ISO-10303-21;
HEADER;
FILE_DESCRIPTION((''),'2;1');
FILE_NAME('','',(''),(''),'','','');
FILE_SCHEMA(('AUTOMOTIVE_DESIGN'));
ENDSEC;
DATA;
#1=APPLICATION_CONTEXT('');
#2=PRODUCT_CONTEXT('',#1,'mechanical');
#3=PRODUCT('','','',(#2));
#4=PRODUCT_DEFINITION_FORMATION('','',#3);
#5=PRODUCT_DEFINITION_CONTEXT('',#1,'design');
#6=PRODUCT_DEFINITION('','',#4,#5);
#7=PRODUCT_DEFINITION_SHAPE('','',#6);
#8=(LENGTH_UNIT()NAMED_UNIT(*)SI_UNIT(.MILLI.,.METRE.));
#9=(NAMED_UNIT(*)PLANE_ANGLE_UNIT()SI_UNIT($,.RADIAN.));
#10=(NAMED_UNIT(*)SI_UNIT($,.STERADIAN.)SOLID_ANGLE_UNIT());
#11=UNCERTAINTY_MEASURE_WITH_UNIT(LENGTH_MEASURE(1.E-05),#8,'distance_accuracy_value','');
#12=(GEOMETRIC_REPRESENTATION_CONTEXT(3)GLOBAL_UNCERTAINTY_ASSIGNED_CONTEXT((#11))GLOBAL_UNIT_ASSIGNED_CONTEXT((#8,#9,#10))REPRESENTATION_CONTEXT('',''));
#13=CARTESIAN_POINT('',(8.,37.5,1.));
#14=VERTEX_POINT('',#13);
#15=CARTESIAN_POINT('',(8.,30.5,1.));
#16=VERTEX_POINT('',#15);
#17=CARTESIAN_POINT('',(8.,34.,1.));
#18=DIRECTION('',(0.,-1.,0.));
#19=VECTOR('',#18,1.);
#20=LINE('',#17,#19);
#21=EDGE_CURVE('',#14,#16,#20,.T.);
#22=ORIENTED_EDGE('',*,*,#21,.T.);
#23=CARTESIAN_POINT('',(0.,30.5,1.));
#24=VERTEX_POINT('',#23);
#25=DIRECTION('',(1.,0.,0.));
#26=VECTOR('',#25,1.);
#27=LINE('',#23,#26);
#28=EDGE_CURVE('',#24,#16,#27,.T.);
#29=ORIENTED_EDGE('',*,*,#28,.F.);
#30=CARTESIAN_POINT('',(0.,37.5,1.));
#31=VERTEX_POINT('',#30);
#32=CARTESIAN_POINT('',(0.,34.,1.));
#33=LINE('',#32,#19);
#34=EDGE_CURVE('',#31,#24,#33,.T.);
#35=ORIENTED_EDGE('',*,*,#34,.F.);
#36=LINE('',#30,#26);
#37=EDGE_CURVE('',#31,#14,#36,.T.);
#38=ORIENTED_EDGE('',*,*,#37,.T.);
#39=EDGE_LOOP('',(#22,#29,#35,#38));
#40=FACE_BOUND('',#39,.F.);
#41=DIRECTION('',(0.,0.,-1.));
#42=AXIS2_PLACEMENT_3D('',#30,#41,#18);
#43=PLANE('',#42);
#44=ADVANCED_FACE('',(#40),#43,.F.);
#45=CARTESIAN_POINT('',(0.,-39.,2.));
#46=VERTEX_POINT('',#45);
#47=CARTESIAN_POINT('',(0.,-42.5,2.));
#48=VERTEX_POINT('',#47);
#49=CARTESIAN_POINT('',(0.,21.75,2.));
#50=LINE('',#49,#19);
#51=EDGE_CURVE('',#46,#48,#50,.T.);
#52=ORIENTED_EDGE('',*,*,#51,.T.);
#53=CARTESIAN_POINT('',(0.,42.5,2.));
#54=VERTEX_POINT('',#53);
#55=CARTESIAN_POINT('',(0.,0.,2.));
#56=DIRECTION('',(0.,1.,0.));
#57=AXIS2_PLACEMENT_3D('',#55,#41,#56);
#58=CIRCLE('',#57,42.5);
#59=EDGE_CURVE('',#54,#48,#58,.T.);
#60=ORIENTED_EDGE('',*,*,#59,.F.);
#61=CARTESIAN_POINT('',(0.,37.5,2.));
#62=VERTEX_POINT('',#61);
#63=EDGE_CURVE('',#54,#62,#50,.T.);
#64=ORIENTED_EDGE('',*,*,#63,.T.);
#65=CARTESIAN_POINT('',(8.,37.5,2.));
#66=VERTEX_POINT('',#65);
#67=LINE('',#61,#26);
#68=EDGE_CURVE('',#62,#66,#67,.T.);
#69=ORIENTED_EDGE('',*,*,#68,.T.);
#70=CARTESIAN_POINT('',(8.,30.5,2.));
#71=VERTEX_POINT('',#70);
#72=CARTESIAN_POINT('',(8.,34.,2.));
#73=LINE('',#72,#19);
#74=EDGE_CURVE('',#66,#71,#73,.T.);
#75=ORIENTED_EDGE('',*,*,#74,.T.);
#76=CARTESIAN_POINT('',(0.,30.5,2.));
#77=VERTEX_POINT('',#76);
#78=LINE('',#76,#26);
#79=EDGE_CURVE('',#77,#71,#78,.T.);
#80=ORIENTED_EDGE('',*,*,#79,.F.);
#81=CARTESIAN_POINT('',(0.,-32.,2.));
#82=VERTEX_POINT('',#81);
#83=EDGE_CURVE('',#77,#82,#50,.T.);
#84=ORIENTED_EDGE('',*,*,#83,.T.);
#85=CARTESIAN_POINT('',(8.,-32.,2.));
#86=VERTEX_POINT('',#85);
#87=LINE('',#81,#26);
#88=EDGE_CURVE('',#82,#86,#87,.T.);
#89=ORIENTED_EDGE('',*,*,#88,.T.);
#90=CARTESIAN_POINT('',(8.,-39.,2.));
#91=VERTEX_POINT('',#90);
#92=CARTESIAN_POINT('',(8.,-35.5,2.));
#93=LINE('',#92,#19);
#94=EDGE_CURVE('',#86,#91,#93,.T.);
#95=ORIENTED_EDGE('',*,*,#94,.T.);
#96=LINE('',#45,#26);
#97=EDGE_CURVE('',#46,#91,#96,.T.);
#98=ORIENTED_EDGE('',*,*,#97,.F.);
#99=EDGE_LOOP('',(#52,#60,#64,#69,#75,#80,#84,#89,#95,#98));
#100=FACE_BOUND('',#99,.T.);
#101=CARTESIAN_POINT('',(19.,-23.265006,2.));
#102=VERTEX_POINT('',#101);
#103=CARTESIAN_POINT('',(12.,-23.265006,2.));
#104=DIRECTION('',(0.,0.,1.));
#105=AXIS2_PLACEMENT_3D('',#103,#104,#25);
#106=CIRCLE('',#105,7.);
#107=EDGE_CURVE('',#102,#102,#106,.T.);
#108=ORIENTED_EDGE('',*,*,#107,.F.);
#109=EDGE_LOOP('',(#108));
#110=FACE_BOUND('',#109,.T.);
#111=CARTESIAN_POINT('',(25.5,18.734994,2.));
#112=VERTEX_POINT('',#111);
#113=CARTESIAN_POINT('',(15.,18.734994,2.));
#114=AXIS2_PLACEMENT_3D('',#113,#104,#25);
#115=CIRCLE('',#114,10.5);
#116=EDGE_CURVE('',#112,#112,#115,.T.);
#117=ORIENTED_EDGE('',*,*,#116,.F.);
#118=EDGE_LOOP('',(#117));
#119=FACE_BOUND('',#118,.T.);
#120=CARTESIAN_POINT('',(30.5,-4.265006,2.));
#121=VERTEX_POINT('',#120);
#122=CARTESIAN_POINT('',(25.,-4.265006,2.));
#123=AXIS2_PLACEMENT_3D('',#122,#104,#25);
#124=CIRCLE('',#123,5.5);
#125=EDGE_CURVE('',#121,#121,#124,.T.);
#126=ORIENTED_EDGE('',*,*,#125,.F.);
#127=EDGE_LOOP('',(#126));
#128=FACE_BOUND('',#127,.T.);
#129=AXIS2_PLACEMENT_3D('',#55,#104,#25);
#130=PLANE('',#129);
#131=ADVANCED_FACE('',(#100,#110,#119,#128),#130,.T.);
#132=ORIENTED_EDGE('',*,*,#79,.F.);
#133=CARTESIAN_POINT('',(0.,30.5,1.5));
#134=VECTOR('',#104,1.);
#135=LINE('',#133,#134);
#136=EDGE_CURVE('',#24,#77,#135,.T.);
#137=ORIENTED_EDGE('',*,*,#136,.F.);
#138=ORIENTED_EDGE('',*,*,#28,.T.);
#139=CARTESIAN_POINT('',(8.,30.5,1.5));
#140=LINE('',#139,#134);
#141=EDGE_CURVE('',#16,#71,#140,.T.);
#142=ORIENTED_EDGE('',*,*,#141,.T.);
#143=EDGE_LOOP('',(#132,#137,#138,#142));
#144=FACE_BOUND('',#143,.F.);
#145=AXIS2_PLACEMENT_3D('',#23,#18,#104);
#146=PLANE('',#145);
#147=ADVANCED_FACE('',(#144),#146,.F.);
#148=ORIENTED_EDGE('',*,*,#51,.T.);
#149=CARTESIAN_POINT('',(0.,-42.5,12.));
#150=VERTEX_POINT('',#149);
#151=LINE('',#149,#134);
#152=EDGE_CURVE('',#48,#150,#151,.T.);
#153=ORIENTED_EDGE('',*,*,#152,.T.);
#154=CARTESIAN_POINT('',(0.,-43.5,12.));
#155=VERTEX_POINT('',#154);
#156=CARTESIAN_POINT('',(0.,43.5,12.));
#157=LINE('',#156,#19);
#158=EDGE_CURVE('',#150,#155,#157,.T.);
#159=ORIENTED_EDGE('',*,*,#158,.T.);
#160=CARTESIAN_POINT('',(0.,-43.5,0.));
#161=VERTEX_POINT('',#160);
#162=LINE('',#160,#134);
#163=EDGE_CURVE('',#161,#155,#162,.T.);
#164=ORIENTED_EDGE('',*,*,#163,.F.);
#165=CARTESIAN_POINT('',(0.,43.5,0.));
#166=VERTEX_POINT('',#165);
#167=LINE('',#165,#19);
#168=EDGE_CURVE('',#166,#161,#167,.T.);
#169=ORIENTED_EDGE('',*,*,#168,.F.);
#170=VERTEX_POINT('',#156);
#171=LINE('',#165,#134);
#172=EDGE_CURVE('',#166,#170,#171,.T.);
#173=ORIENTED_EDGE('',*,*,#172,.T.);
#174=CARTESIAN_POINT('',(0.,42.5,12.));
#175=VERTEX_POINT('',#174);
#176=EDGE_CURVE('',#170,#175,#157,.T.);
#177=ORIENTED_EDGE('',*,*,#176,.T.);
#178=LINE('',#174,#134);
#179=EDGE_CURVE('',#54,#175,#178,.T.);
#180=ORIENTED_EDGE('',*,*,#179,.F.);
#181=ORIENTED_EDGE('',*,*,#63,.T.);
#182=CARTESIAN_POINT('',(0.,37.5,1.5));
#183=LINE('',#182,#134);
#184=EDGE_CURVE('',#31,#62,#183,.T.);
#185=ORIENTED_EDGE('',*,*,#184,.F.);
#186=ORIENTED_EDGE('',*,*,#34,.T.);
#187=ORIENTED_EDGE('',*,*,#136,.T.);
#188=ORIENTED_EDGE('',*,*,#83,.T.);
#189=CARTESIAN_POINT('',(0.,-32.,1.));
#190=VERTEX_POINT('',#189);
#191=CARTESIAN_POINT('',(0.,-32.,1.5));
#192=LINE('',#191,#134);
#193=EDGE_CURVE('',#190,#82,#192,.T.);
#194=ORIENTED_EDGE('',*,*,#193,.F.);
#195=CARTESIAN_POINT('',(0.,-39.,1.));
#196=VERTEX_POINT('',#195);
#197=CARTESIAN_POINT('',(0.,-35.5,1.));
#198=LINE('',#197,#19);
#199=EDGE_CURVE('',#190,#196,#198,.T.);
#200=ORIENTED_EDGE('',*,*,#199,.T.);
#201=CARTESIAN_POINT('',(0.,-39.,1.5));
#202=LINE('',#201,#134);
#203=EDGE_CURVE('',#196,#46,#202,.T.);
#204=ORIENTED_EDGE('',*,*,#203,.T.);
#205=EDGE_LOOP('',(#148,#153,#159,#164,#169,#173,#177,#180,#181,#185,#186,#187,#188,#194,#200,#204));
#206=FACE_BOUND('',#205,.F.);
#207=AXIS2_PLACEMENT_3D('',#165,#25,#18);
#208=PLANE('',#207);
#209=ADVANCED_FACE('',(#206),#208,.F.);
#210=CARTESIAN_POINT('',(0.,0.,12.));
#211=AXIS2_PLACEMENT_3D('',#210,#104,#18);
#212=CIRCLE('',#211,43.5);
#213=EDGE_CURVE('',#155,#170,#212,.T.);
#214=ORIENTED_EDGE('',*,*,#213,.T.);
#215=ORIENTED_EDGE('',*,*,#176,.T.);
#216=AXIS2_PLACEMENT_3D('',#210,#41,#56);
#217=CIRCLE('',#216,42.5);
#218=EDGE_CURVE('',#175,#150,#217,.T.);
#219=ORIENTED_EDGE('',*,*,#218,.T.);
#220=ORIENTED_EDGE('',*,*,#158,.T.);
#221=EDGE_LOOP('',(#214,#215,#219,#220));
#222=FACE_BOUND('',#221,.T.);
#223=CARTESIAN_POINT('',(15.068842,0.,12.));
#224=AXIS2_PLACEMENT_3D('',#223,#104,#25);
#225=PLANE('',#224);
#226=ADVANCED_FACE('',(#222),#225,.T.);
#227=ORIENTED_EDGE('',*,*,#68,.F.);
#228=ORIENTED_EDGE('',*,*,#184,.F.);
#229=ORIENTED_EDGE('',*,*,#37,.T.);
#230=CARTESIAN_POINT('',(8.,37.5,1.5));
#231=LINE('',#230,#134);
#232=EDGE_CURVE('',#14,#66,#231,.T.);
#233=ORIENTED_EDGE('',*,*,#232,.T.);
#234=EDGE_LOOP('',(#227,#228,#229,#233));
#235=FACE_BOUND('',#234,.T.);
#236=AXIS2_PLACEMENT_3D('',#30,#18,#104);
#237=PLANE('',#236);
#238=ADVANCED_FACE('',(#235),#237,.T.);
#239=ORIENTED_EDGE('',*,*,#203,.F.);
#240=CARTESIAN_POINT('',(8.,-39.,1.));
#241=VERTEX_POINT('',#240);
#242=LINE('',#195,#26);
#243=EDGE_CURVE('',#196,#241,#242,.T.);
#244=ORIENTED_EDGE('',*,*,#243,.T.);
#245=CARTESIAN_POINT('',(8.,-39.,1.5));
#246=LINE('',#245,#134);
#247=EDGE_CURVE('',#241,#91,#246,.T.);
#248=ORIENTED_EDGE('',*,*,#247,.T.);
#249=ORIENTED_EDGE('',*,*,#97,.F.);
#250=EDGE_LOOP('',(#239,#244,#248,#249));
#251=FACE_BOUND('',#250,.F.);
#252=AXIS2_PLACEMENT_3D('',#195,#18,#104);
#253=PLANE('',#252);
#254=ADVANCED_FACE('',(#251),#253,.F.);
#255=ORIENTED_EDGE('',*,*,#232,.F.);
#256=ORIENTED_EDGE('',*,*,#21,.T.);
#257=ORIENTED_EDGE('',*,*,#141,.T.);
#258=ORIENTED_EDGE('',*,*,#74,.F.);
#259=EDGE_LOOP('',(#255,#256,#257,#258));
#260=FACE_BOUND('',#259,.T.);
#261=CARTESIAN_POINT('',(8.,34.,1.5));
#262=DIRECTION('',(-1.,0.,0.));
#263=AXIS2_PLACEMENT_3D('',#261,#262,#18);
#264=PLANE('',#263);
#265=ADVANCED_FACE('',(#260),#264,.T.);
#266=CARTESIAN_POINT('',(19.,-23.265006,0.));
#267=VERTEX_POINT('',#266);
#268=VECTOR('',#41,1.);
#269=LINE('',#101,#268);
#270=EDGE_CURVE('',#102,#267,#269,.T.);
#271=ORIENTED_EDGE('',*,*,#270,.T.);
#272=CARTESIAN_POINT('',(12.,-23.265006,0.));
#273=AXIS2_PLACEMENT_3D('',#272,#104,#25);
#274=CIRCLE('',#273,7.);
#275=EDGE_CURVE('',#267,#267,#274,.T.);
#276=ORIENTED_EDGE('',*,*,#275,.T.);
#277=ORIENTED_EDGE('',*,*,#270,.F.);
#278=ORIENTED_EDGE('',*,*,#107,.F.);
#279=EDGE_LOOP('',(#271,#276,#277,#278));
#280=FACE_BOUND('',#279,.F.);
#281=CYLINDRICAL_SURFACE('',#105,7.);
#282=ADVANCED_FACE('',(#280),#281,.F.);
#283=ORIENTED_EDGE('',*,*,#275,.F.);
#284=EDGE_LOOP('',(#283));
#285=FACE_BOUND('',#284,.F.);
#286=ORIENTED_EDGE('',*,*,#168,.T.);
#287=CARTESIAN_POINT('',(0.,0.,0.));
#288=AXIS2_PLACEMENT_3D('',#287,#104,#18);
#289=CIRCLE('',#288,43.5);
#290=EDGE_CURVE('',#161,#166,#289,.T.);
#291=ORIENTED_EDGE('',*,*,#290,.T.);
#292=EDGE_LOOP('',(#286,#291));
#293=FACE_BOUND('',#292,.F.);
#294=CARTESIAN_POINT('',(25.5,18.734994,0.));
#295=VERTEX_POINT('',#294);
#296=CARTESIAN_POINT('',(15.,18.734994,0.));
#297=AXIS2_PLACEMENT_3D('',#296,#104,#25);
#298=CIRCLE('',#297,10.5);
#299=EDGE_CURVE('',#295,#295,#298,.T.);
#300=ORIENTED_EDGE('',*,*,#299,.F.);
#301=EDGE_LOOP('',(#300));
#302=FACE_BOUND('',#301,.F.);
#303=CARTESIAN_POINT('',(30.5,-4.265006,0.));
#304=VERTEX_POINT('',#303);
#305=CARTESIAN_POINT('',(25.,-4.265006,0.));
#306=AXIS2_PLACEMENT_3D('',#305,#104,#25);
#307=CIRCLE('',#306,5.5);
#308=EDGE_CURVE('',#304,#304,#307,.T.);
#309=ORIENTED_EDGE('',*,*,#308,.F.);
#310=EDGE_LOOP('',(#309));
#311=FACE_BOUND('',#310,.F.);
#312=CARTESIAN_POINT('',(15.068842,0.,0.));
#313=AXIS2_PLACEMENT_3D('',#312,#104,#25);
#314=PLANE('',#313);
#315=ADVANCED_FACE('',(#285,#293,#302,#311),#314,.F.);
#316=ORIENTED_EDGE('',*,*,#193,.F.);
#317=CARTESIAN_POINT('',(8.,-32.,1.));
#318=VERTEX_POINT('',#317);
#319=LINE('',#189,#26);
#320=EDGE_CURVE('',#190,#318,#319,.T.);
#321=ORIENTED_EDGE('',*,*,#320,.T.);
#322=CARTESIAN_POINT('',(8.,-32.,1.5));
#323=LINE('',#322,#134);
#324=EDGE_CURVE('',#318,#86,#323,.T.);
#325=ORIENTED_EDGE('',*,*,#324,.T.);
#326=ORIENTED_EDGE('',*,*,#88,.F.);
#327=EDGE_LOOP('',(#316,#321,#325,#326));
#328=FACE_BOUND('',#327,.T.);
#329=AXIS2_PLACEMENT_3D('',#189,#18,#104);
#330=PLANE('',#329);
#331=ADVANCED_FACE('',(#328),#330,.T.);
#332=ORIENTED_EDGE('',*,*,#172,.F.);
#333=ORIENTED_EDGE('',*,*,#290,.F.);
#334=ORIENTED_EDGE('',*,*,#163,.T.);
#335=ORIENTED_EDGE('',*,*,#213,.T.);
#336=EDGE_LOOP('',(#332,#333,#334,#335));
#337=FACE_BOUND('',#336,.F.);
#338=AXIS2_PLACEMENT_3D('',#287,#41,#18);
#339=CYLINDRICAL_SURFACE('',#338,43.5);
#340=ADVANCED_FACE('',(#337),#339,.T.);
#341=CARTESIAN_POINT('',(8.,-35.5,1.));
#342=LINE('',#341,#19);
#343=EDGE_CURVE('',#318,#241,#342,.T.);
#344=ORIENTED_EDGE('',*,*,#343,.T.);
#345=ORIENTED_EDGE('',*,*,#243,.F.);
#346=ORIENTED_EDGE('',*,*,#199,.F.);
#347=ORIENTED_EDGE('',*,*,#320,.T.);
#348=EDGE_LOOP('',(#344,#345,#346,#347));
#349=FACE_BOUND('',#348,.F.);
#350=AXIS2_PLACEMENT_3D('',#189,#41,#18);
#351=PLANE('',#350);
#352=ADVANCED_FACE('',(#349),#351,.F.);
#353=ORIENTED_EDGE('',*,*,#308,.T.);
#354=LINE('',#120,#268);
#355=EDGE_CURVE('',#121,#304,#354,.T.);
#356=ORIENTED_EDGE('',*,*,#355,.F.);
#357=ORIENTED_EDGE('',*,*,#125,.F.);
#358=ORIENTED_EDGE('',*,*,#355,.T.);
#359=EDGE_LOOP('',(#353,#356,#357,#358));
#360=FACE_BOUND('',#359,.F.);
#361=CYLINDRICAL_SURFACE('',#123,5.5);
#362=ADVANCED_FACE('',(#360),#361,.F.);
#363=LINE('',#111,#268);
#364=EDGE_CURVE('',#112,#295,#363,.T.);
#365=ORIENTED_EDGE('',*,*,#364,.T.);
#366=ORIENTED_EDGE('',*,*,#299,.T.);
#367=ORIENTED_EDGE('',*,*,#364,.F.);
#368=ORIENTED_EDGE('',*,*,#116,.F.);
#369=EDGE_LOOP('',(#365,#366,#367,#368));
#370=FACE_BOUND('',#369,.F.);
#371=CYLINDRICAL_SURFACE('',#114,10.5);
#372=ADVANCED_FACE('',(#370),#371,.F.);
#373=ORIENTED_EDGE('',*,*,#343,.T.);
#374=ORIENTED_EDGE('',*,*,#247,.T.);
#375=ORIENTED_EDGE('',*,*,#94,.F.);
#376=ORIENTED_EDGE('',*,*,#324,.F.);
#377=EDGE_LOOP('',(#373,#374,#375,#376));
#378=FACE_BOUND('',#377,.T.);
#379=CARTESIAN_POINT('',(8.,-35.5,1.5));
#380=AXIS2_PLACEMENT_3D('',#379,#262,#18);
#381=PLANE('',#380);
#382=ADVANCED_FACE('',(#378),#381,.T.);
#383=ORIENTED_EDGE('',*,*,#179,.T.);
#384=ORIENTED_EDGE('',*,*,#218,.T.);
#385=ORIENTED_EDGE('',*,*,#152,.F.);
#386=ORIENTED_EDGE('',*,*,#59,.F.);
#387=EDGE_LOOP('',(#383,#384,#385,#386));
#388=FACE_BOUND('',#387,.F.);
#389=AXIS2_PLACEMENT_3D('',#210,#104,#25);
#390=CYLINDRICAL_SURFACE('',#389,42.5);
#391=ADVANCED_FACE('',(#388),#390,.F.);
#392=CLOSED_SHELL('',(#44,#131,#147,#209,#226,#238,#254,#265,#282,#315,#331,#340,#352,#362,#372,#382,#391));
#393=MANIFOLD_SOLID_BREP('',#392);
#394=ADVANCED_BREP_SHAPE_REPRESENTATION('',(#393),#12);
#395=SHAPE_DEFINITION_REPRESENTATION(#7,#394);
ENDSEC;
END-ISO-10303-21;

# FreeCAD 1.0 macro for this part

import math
import FreeCAD as App
import Part
import Sketcher

doc = App.newDocument("Part")
params = doc.addObject("Spreadsheet::Sheet", "Params")
for row, (alias, value) in enumerate([
    ("sketch1_radius", "43.5 mm"),
    ("pad1_length", "12 mm"),
    ("sketch2_diameter", "85 mm"),
    ("pocket1_length", "10 mm"),
    ("sketch3_diameter", "21 mm"),
    ("sketch3_diameter2", "11 mm"),
    ("sketch3_diameter3", "14 mm"),
    ("sketch4_width", "7 mm"),
    ("sketch4_height", "1 mm"),
    ("pocket3_length", "8 mm"),
], start=1):
    params.set(f"A{row}", alias)
    params.set(f"B{row}", "=" + value)
    params.setAlias(f"B{row}", alias)

body = doc.addObject("PartDesign::Body", "Body")

# Sketch on XY plane
sketch1 = body.newObject("Sketcher::SketchObject", "Sketch")
sketch1.AttachmentSupport = (doc.getObject("XY_Plane"), [""])
sketch1.MapMode = "FlatFace"
sketch1.addGeometry(Part.LineSegment(App.Vector(0, 43.5, 0), App.Vector(0, -43.5, 0)), False)
sketch1.addGeometry(Part.ArcOfCircle(Part.Circle(App.Vector(0, 0, 0), App.Vector(0, 0, 1), 43.5), math.radians(-90), math.radians(90)), False)
sketch1.addConstraint(Sketcher.Constraint("Coincident", 0, 1, 1, 2))
sketch1.addConstraint(Sketcher.Constraint("Coincident", 1, 1, 0, 2))
sketch1.addConstraint(Sketcher.Constraint("Vertical", 0))
sketch1.addConstraint(Sketcher.Constraint("Coincident", 1, 3, -1, 1))
sketch1.addConstraint(Sketcher.Constraint("PointOnObject", 0, 1, -2))
sketch1.addConstraint(Sketcher.Constraint("Radius", 1, 43.5))
sketch1.setExpression("Constraints[5]", "Params.sketch1_radius")
pad1 = body.newObject("PartDesign::Pad", "Pad")
pad1.Profile = sketch1
pad1.setExpression("Length", "Params.pad1_length")

# Sketch on XY plane
sketch2 = body.newObject("Sketcher::SketchObject", "Sketch001")
sketch2.AttachmentSupport = (doc.getObject("XY_Plane"), [""])
sketch2.MapMode = "FlatFace"
sketch2.AttachmentOffset = App.Placement(App.Vector(0, 0, 12), App.Rotation())
sketch2.addGeometry(Part.Circle(App.Vector(0, 0, 0), App.Vector(0, 0, 1), 42.5), False)
sketch2.addConstraint(Sketcher.Constraint("Coincident", 0, 3, -1, 1))
sketch2.addConstraint(Sketcher.Constraint("Diameter", 0, 85.0))
sketch2.setExpression("Constraints[1]", "Params.sketch2_diameter")
pocket1 = body.newObject("PartDesign::Pocket", "Pocket")
pocket1.Profile = sketch2
pocket1.setExpression("Length", "Params.pocket1_length")

# Sketch on XY plane
sketch3 = body.newObject("Sketcher::SketchObject", "Sketch002")
sketch3.AttachmentSupport = (doc.getObject("XY_Plane"), [""])
sketch3.MapMode = "FlatFace"
sketch3.AttachmentOffset = App.Placement(App.Vector(0, 0, 2), App.Rotation())
sketch3.addGeometry(Part.Circle(App.Vector(-15, 18.734994, 0), App.Vector(0, 0, 1), 10.5), False)
sketch3.addGeometry(Part.Circle(App.Vector(-25, -4.265006, 0), App.Vector(0, 0, 1), 5.5), False)
sketch3.addGeometry(Part.Circle(App.Vector(-12, -23.265006, 0), App.Vector(0, 0, 1), 7), False)
sketch3.addGeometry(Part.Circle(App.Vector(15, 18.734994, 0), App.Vector(0, 0, 1), 10.5), False)
sketch3.addGeometry(Part.Circle(App.Vector(25, -4.265006, 0), App.Vector(0, 0, 1), 5.5), False)
sketch3.addGeometry(Part.Circle(App.Vector(12, -23.265006, 0), App.Vector(0, 0, 1), 7), False)
sketch3.addConstraint(Sketcher.Constraint("Equal", 0, 3))
sketch3.addConstraint(Sketcher.Constraint("Equal", 1, 4))
sketch3.addConstraint(Sketcher.Constraint("Equal", 2, 5))
sketch3.addConstraint(Sketcher.Constraint("Symmetric", 0, 3, 3, 3, -2))
sketch3.addConstraint(Sketcher.Constraint("Symmetric", 1, 3, 4, 3, -2))
sketch3.addConstraint(Sketcher.Constraint("Symmetric", 2, 3, 5, 3, -2))
sketch3.addConstraint(Sketcher.Constraint("Diameter", 0, 21.0))
sketch3.addConstraint(Sketcher.Constraint("Diameter", 1, 11.0))
sketch3.addConstraint(Sketcher.Constraint("Diameter", 2, 14.0))
sketch3.addConstraint(Sketcher.Constraint("DistanceX", 0, 3, -1, 1, 15.0))
sketch3.addConstraint(Sketcher.Constraint("DistanceX", 1, 3, -1, 1, 25.0))
sketch3.addConstraint(Sketcher.Constraint("DistanceX", 2, 3, -1, 1, 12.0))
sketch3.addConstraint(Sketcher.Constraint("DistanceY", 1, 3, 0, 3, 23.0))
sketch3.addConstraint(Sketcher.Constraint("DistanceY", 2, 3, 1, 3, 19.0))
sketch3.addConstraint(Sketcher.Constraint("DistanceY", -1, 1, 0, 3, 18.734994))
sketch3.setExpression("Constraints[6]", "Params.sketch3_diameter")
sketch3.setExpression("Constraints[7]", "Params.sketch3_diameter2")
sketch3.setExpression("Constraints[8]", "Params.sketch3_diameter3")
pocket2 = body.newObject("PartDesign::Pocket", "Pocket001")
pocket2.Profile = sketch3
pocket2.Type = "ThroughAll"

# Sketch on YZ plane
sketch4 = body.newObject("Sketcher::SketchObject", "Sketch003")
sketch4.AttachmentSupport = (doc.getObject("YZ_Plane"), [""])
sketch4.MapMode = "FlatFace"
sketch4.addGeometry(Part.LineSegment(App.Vector(37.5, 2, 0), App.Vector(37.5, 1, 0)), False)
sketch4.addGeometry(Part.LineSegment(App.Vector(37.5, 1, 0), App.Vector(30.5, 1, 0)), False)
sketch4.addGeometry(Part.LineSegment(App.Vector(30.5, 1, 0), App.Vector(30.5, 2, 0)), False)
sketch4.addGeometry(Part.LineSegment(App.Vector(30.5, 2, 0), App.Vector(37.5, 2, 0)), False)
sketch4.addGeometry(Part.LineSegment(App.Vector(-32, 2, 0), App.Vector(-32, 1, 0)), False)
sketch4.addGeometry(Part.LineSegment(App.Vector(-32, 1, 0), App.Vector(-39, 1, 0)), False)
sketch4.addGeometry(Part.LineSegment(App.Vector(-39, 1, 0), App.Vector(-39, 2, 0)), False)
sketch4.addGeometry(Part.LineSegment(App.Vector(-39, 2, 0), App.Vector(-32, 2, 0)), False)
sketch4.addConstraint(Sketcher.Constraint("Coincident", 0, 2, 1, 1))
sketch4.addConstraint(Sketcher.Constraint("Coincident", 1, 2, 2, 1))
sketch4.addConstraint(Sketcher.Constraint("Coincident", 2, 2, 3, 1))
sketch4.addConstraint(Sketcher.Constraint("Coincident", 3, 2, 0, 1))
sketch4.addConstraint(Sketcher.Constraint("Coincident", 4, 2, 5, 1))
sketch4.addConstraint(Sketcher.Constraint("Coincident", 5, 2, 6, 1))
sketch4.addConstraint(Sketcher.Constraint("Coincident", 6, 2, 7, 1))
sketch4.addConstraint(Sketcher.Constraint("Coincident", 7, 2, 4, 1))
sketch4.addConstraint(Sketcher.Constraint("Vertical", 0))
sketch4.addConstraint(Sketcher.Constraint("Horizontal", 1))
sketch4.addConstraint(Sketcher.Constraint("Vertical", 2))
sketch4.addConstraint(Sketcher.Constraint("Horizontal", 3))
sketch4.addConstraint(Sketcher.Constraint("Vertical", 4))
sketch4.addConstraint(Sketcher.Constraint("Horizontal", 5))
sketch4.addConstraint(Sketcher.Constraint("Vertical", 6))
sketch4.addConstraint(Sketcher.Constraint("Horizontal", 7))
sketch4.addConstraint(Sketcher.Constraint("Horizontal", 1, 2, 4, 2))
sketch4.addConstraint(Sketcher.Constraint("Horizontal", 3, 2, 6, 2))
sketch4.addConstraint(Sketcher.Constraint("Equal", 3, 5))
sketch4.addConstraint(Sketcher.Constraint("DistanceX", 1, 2, 1, 1, 7.0))
sketch4.addConstraint(Sketcher.Constraint("DistanceY", 0, 2, 0, 1, 1.0))
sketch4.addConstraint(Sketcher.Constraint("DistanceY", -1, 1, 0, 2, 1.0))
sketch4.addConstraint(Sketcher.Constraint("DistanceX", 4, 2, -1, 1, 32.0))
sketch4.addConstraint(Sketcher.Constraint("DistanceX", -1, 1, 0, 2, 37.5))
sketch4.setExpression("Constraints[19]", "Params.sketch4_width")
sketch4.setExpression("Constraints[20]", "Params.sketch4_height")
pocket3 = body.newObject("PartDesign::Pocket", "Pocket002")
pocket3.Profile = sketch4
pocket3.setExpression("Length", "Params.pocket3_length")
pocket3.Reversed = True

doc.recompute()
